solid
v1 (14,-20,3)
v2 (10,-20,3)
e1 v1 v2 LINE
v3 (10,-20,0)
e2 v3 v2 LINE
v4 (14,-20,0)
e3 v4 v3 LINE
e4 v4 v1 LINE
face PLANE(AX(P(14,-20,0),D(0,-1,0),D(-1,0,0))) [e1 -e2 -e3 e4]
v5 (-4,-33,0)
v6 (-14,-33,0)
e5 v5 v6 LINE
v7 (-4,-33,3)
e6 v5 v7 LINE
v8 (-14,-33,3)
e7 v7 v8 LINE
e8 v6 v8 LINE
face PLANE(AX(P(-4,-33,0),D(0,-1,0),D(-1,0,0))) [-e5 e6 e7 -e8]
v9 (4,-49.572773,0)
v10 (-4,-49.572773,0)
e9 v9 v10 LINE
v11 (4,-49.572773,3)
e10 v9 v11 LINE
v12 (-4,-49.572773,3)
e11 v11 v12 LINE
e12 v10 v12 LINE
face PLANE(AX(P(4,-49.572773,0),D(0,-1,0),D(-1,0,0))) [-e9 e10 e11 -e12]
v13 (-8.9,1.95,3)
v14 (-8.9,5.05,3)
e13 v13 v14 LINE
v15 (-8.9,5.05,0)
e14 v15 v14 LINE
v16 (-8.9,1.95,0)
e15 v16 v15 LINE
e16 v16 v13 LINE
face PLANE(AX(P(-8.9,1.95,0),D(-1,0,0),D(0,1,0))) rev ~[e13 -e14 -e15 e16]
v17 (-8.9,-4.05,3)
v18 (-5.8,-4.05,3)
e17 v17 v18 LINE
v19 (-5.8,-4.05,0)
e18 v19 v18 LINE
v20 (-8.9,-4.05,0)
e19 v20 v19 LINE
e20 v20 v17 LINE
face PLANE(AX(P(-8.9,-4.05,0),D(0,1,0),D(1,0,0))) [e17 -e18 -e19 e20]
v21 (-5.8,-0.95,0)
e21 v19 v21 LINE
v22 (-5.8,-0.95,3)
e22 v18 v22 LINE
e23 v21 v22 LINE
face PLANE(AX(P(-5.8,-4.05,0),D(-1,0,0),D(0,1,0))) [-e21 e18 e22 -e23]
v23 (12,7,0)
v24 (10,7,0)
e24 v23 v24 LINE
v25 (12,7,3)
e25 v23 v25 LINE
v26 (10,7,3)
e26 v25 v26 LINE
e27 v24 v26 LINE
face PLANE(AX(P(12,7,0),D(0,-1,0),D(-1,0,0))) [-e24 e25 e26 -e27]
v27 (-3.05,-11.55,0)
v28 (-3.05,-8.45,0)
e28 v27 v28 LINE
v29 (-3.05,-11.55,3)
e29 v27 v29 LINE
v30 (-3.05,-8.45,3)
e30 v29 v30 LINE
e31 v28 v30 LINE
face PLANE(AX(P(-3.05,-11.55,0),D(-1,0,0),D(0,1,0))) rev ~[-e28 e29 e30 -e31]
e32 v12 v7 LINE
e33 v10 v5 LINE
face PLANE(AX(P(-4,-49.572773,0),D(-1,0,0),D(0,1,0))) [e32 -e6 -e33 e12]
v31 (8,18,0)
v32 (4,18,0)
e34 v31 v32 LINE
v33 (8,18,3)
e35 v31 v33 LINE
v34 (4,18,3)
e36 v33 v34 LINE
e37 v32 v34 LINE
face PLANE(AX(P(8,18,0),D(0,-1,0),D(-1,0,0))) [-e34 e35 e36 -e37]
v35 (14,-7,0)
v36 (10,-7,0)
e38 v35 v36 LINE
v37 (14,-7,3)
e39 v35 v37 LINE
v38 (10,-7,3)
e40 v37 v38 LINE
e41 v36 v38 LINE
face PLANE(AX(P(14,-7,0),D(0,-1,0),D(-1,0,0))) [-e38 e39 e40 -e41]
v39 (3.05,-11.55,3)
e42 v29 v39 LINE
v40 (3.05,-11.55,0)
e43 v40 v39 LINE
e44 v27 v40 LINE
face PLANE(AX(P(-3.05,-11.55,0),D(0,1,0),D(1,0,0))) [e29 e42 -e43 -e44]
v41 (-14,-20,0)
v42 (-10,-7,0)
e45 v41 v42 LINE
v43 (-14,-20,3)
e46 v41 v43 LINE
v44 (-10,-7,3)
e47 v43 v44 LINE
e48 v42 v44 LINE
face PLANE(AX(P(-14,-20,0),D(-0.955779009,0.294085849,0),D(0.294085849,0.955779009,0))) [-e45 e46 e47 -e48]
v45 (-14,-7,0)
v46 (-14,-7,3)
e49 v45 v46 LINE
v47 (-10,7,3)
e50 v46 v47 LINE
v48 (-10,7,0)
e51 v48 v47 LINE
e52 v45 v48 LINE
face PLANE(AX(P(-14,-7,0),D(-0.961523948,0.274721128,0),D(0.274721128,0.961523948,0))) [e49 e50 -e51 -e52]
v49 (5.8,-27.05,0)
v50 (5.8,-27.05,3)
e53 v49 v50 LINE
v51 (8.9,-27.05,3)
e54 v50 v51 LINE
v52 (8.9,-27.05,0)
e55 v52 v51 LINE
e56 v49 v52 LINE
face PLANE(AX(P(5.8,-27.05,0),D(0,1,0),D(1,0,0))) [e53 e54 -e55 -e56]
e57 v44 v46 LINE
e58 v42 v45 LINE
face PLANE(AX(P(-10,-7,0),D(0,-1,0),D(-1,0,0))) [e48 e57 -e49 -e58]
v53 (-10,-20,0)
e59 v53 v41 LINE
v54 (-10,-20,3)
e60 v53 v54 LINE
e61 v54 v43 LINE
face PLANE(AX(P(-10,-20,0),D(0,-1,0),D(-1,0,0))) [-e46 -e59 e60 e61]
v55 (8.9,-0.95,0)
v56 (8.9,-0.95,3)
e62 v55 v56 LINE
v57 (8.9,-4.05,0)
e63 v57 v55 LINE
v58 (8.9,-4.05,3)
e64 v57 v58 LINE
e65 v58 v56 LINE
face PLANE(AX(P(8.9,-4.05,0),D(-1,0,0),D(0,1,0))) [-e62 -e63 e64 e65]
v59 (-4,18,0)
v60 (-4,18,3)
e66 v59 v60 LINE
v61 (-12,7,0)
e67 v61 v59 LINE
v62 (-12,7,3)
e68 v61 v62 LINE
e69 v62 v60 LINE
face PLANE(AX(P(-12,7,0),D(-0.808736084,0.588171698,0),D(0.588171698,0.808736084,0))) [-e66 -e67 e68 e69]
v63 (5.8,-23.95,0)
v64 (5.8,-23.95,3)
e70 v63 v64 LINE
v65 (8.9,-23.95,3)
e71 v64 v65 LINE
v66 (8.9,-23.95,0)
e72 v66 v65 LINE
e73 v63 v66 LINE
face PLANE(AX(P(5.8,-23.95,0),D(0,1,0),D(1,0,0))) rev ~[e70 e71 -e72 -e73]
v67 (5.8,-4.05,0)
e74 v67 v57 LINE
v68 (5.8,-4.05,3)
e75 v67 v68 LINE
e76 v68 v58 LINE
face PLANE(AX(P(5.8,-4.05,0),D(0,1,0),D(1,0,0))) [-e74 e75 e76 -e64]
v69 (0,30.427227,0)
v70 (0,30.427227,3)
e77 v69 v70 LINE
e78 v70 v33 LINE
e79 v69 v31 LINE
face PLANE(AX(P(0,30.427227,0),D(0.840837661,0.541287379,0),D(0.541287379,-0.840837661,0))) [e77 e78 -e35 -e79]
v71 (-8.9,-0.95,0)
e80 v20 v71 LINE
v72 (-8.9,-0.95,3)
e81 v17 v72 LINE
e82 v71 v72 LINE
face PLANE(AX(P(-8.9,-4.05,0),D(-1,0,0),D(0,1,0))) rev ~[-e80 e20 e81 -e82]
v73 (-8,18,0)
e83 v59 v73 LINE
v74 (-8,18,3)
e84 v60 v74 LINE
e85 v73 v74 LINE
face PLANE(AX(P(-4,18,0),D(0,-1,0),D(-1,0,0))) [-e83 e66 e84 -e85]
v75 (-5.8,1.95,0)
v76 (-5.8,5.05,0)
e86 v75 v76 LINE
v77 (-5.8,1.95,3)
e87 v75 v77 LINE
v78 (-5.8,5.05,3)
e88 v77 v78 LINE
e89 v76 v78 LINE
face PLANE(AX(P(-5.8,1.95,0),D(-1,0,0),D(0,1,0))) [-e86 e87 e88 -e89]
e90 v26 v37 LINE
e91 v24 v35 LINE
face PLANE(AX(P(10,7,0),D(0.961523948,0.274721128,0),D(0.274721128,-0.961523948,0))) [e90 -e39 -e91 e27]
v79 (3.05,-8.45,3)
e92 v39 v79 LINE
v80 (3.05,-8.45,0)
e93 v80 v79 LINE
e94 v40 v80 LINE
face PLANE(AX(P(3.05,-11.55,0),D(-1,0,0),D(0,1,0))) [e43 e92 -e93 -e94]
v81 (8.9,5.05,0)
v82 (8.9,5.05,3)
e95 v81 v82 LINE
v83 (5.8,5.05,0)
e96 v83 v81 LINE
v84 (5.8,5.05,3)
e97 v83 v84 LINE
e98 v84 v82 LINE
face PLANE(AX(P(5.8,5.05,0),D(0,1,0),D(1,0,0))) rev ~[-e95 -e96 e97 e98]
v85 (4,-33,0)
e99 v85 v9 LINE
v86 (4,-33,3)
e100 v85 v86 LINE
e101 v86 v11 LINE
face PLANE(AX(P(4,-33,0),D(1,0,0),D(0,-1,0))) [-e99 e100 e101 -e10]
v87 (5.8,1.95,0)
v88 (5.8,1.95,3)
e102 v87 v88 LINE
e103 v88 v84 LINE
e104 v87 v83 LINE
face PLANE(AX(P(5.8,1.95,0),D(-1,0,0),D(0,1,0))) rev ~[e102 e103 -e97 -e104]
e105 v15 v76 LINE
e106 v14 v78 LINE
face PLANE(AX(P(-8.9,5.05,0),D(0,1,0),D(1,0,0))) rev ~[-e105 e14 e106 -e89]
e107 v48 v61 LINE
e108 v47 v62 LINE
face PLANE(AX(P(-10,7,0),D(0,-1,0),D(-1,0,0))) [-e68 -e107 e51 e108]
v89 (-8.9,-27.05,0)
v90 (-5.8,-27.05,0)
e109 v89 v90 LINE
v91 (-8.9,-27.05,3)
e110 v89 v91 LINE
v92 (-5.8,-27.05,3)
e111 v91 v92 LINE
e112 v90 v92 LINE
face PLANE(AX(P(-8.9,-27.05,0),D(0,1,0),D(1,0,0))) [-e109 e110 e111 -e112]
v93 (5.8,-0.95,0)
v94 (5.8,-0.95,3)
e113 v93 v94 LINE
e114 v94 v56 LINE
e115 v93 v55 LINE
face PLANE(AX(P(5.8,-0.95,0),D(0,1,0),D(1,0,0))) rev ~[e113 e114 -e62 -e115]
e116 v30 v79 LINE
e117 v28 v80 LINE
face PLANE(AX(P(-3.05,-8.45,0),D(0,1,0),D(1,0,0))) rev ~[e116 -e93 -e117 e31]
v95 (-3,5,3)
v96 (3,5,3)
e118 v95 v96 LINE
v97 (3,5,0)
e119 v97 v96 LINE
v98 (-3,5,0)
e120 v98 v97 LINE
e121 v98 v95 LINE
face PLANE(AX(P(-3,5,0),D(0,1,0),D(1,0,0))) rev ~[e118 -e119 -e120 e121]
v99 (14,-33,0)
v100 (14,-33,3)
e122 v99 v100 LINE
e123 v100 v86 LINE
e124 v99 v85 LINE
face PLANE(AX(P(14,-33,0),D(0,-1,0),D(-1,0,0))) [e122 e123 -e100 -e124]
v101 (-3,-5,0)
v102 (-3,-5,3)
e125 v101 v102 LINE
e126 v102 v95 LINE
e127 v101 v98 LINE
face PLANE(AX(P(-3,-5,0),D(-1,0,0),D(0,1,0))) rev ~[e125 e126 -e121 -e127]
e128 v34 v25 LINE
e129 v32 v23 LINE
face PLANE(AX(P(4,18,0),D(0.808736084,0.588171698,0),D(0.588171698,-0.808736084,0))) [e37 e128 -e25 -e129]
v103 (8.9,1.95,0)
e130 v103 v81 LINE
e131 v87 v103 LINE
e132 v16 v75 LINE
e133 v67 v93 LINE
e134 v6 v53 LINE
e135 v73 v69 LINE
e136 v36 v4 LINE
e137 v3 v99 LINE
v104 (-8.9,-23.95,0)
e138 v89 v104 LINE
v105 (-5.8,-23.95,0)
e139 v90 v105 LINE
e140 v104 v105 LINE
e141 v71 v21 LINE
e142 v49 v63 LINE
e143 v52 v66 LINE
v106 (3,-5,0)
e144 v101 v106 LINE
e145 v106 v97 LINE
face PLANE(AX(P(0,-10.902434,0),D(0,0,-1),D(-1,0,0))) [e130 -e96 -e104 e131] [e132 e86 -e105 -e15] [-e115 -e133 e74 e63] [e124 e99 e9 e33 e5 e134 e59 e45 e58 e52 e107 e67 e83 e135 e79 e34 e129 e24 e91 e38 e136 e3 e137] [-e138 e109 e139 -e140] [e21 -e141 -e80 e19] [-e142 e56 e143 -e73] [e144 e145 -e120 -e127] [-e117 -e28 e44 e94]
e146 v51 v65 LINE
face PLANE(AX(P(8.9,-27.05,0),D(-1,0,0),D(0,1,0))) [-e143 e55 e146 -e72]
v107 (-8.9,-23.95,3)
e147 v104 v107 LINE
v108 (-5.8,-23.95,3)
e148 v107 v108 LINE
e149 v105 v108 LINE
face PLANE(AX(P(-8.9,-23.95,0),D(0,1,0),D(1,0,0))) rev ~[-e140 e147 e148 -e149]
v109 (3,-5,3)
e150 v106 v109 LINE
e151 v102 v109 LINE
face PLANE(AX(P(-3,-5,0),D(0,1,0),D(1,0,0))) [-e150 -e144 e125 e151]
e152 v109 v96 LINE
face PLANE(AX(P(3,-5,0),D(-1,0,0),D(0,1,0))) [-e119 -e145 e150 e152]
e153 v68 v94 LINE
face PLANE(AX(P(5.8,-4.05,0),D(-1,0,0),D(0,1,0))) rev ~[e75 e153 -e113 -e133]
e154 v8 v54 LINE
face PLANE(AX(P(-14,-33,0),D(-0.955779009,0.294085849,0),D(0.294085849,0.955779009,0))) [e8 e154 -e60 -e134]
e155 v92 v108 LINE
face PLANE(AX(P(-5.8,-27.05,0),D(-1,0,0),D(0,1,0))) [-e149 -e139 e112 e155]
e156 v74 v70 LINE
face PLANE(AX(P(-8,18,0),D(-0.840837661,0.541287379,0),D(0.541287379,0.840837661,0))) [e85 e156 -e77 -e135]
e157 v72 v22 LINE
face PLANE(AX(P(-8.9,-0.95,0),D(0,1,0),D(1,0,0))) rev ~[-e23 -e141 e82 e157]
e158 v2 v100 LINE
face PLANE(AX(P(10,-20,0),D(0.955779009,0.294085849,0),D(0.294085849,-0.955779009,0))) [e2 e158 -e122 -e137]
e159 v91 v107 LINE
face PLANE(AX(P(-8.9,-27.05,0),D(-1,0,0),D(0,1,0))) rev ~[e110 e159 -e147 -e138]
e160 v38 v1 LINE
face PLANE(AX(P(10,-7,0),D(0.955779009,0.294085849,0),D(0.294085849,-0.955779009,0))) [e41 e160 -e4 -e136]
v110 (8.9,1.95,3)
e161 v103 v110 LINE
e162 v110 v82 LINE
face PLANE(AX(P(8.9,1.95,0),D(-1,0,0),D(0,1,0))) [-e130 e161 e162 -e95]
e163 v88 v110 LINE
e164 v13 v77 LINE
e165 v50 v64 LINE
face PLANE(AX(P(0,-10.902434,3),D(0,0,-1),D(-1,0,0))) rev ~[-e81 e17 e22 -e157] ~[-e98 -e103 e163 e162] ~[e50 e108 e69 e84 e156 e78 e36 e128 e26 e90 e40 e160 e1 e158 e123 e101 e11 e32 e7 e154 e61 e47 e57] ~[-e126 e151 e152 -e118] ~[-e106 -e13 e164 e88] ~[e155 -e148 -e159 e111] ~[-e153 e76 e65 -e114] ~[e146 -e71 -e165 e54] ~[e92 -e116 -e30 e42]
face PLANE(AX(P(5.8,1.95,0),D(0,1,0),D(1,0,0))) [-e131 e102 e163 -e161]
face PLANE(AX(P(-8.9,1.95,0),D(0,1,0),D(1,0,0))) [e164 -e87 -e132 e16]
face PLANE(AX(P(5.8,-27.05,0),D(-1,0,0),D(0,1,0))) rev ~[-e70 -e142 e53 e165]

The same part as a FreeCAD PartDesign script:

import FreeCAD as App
import Part
import Sketcher

V = App.Vector
Q = App.Units.Quantity


def add_polygon(sketch, points):
    """Adds a closed chain of lines whose ends are joined by coincident constraints."""
    first, n = sketch.GeometryCount, len(points)
    for a, b in zip(points, points[1:] + points[:1]):
        sketch.addGeometry(Part.LineSegment(App.Vector(*a, 0), App.Vector(*b, 0)), False)
    for i in range(n):
        sketch.addConstraint(Sketcher.Constraint("Coincident", first + i, 2, first + (i + 1) % n, 1))

doc = App.newDocument("Part")
params = doc.addObject("Spreadsheet::Sheet", "Params")
for row, (alias, value) in enumerate([
    ("sketch1_width", "4 mm"),
    ("sketch1_width2", "2 mm"),
    ("sketch1_width3", "10 mm"),
    ("sketch1_width4", "8 mm"),
    ("sketch1_width5", "6 mm"),
    ("pad1_length", "3 mm"),
], start=1):
    params.set(f"A{row}", alias)
    params.set(f"B{row}", "=" + value)
    params.setAlias(f"B{row}", alias)

body = doc.addObject("PartDesign::Body", "Body")

sketch1 = doc.addObject("Sketcher::SketchObject", "Sketch")
body.addObject(sketch1)
sketch1.AttachmentSupport = (doc.XY_Plane, [""])
sketch1.MapMode = "FlatFace"
add_polygon(sketch1, [(8, 18), (0, 30.4), (-8, 18), (-4, 18), (-12, 7), (-10, 7), (-14, -7), (-10, -7), (-14, -20), (-10, -20), (-14, -33), (-4, -33), (-4, -49.6), (4, -49.6), (4, -33), (14, -33), (10, -20), (14, -20), (10, -7), (14, -7), (10, 7), (12, 7), (4, 18)])
add_polygon(sketch1, [(5.8, -27.1), (5.8, -23.9), (8.9, -23.9), (8.9, -27.1)])
add_polygon(sketch1, [(-8.9, -27.1), (-8.9, -23.9), (-5.8, -23.9), (-5.8, -27.1)])
add_polygon(sketch1, [(5.8, -4), (5.8, -0.9), (8.9, -0.9), (8.9, -4)])
add_polygon(sketch1, [(5.8, 1.9), (5.8, 5), (8.9, 5), (8.9, 1.9)])
add_polygon(sketch1, [(-3, -11.6), (-3, -8.4), (3, -8.4), (3, -11.6)])
add_polygon(sketch1, [(-3, -5), (-3, 5), (3, 5), (3, -5)])
add_polygon(sketch1, [(-8.9, -4), (-8.9, -0.9), (-5.8, -0.9), (-5.8, -4)])
add_polygon(sketch1, [(-8.9, 1.9), (-8.9, 5), (-5.8, 5), (-5.8, 1.9)])
sketch1.addConstraint(Sketcher.Constraint("Horizontal", 2))
sketch1.addConstraint(Sketcher.Constraint("Horizontal", 4))
sketch1.addConstraint(Sketcher.Constraint("Horizontal", 6))
sketch1.addConstraint(Sketcher.Constraint("Horizontal", 8))
sketch1.addConstraint(Sketcher.Constraint("Horizontal", 10))
sketch1.addConstraint(Sketcher.Constraint("Vertical", 11))
sketch1.addConstraint(Sketcher.Constraint("Horizontal", 12))
sketch1.addConstraint(Sketcher.Constraint("Vertical", 13))
sketch1.addConstraint(Sketcher.Constraint("Horizontal", 14))
sketch1.addConstraint(Sketcher.Constraint("Horizontal", 16))
sketch1.addConstraint(Sketcher.Constraint("Horizontal", 18))
sketch1.addConstraint(Sketcher.Constraint("Horizontal", 20))
sketch1.addConstraint(Sketcher.Constraint("Horizontal", 22))
sketch1.addConstraint(Sketcher.Constraint("Vertical", 23))
sketch1.addConstraint(Sketcher.Constraint("Horizontal", 24))
sketch1.addConstraint(Sketcher.Constraint("Vertical", 25))
sketch1.addConstraint(Sketcher.Constraint("Horizontal", 26))
sketch1.addConstraint(Sketcher.Constraint("Vertical", 27))
sketch1.addConstraint(Sketcher.Constraint("Horizontal", 28))
sketch1.addConstraint(Sketcher.Constraint("Vertical", 29))
sketch1.addConstraint(Sketcher.Constraint("Horizontal", 30))
sketch1.addConstraint(Sketcher.Constraint("Vertical", 31))
sketch1.addConstraint(Sketcher.Constraint("Horizontal", 32))
sketch1.addConstraint(Sketcher.Constraint("Vertical", 33))
sketch1.addConstraint(Sketcher.Constraint("Horizontal", 34))
sketch1.addConstraint(Sketcher.Constraint("Vertical", 35))
sketch1.addConstraint(Sketcher.Constraint("Horizontal", 36))
sketch1.addConstraint(Sketcher.Constraint("Vertical", 37))
sketch1.addConstraint(Sketcher.Constraint("Horizontal", 38))
sketch1.addConstraint(Sketcher.Constraint("Vertical", 39))
sketch1.addConstraint(Sketcher.Constraint("Horizontal", 40))
sketch1.addConstraint(Sketcher.Constraint("Vertical", 41))
sketch1.addConstraint(Sketcher.Constraint("Horizontal", 42))
sketch1.addConstraint(Sketcher.Constraint("Vertical", 43))
sketch1.addConstraint(Sketcher.Constraint("Horizontal", 44))
sketch1.addConstraint(Sketcher.Constraint("Vertical", 45))
sketch1.addConstraint(Sketcher.Constraint("Horizontal", 46))
sketch1.addConstraint(Sketcher.Constraint("Vertical", 47))
sketch1.addConstraint(Sketcher.Constraint("Horizontal", 48))
sketch1.addConstraint(Sketcher.Constraint("Vertical", 49))
sketch1.addConstraint(Sketcher.Constraint("Horizontal", 50))
sketch1.addConstraint(Sketcher.Constraint("Vertical", 51))
sketch1.addConstraint(Sketcher.Constraint("Horizontal", 52))
sketch1.addConstraint(Sketcher.Constraint("Vertical", 53))
sketch1.addConstraint(Sketcher.Constraint("Horizontal", 54))
sketch1.addConstraint(Sketcher.Constraint("Symmetric", 4, 2, 17, 2, -1, 1))
sketch1.addConstraint(Sketcher.Constraint("Symmetric", 6, 2, 19, 2, -1, 1))
sketch1.addConstraint(Sketcher.Constraint("Symmetric", 43, 2, 45, 2, -1, 1))
sketch1.addConstraint(Sketcher.Constraint("Symmetric", 10, 2, 13, 2, -2))
sketch1.addConstraint(Sketcher.Constraint("Symmetric", 8, 2, 15, 2, -2))
sketch1.addConstraint(Sketcher.Constraint("Symmetric", 6, 2, 17, 2, -2))
sketch1.addConstraint(Sketcher.Constraint("Symmetric", 2, 2, 21, 2, -2))
sketch1.addConstraint(Sketcher.Constraint("Symmetric", 24, 2, 27, 2, -2))
sketch1.addConstraint(Sketcher.Constraint("Symmetric", 26, 2, 29, 2, -2))
sketch1.addConstraint(Sketcher.Constraint("Symmetric", 32, 2, 47, 2, -2))
sketch1.addConstraint(Sketcher.Constraint("Symmetric", 34, 2, 49, 2, -2))
sketch1.addConstraint(Sketcher.Constraint("Symmetric", 36, 2, 51, 2, -2))
sketch1.addConstraint(Sketcher.Constraint("Symmetric", 38, 2, 53, 2, -2))
sketch1.addConstraint(Sketcher.Constraint("PointOnObject", 0, 2, -2))
sketch1.addConstraint(Sketcher.Constraint("Parallel", 7, 9))
sketch1.addConstraint(Sketcher.Constraint("Parallel", 15, 17))
sketch1.addConstraint(Sketcher.Constraint("Vertical", 5, 2, 7, 2))
sketch1.addConstraint(Sketcher.Constraint("Vertical", 6, 2, 8, 2))
sketch1.addConstraint(Sketcher.Constraint("Vertical", 7, 2, 9, 2))
sketch1.addConstraint(Sketcher.Constraint("Vertical", 2, 2, 10, 2))
sketch1.addConstraint(Sketcher.Constraint("Vertical", 16, 2, 18, 2))
sketch1.addConstraint(Sketcher.Constraint("Vertical", 26, 2, 31, 2))
sketch1.addConstraint(Sketcher.Constraint("Vertical", 25, 2, 32, 2))
sketch1.addConstraint(Sketcher.Constraint("Vertical", 34, 2, 35, 2))
sketch1.addConstraint(Sketcher.Constraint("Vertical", 33, 2, 36, 2))
sketch1.addConstraint(Sketcher.Constraint("Equal", 2, 6))
sketch1.addConstraint(Sketcher.Constraint("Equal", 10, 14))
sketch1.addConstraint(Sketcher.Constraint("Equal", 4, 20))
sketch1.addConstraint(Sketcher.Constraint("Equal", 18, 22))
sketch1.addConstraint(Sketcher.Constraint("Equal", 54, 23))
sketch1.addConstraint(Sketcher.Constraint("Equal", 29, 31))
sketch1.addConstraint(Sketcher.Constraint("Equal", 33, 35))
sketch1.addConstraint(Sketcher.Constraint("Equal", 37, 39))
sketch1.addConstraint(Sketcher.Constraint("Equal", 14, 43))
sketch1.addConstraint(Sketcher.Constraint("Equal", 3, 7))
sketch1.addConstraint(Sketcher.Constraint("DistanceX", 2, 1, 2, 2, Q("4 mm")))
sketch1.addConstraint(Sketcher.Constraint("DistanceX", 4, 1, 4, 2, Q("2 mm")))
sketch1.addConstraint(Sketcher.Constraint("DistanceX", 10, 1, 10, 2, Q("10 mm")))
sketch1.addConstraint(Sketcher.Constraint("DistanceX", 12, 1, 12, 2, Q("8 mm")))
sketch1.addConstraint(Sketcher.Constraint("DistanceX", 44, 1, 44, 2, Q("6 mm")))
sketch1.addConstraint(Sketcher.Constraint("DistanceX", 24, 1, 24, 2, Q("3.1 mm")))
sketch1.addConstraint(Sketcher.Constraint("DistanceX", 40, 1, 40, 2, Q("6.1 mm")))
sketch1.addConstraint(Sketcher.Constraint("DistanceY", -1, 1, 1, 2, Q("18 mm")))
sketch1.addConstraint(Sketcher.Constraint("DistanceY", -1, 1, 3, 2, Q("7 mm")))
sketch1.addConstraint(Sketcher.Constraint("DistanceY", 31, 2, 35, 2, Q("6 mm")))
sketch1.addConstraint(Sketcher.Constraint("DistanceX", -1, 1, 23, 2, Q("5.8 mm")))
sketch1.addConstraint(Sketcher.Constraint("DistanceY", 39, 2, 34, 2, Q("4.4 mm")))
sketch1.addConstraint(Sketcher.Constraint("DistanceY", 23, 2, -1, 1, Q("23.95 mm")))
sketch1.addConstraint(Sketcher.Constraint("DistanceY", 31, 2, -1, 1, Q("0.95 mm")))
sketch1.addConstraint(Sketcher.Constraint("DistanceX", 39, 2, -1, 1, Q("3.05 mm")))
sketch1.addConstraint(Sketcher.Constraint("Distance", 0, Q("14.77958 mm")))
sketch1.addConstraint(Sketcher.Constraint("DistanceY", 11, 2, 11, 1, Q("16.572773 mm")))
sketch1.setExpression("Constraints[135]", "Params.sketch1_width")
sketch1.setExpression("Constraints[136]", "Params.sketch1_width2")
sketch1.setExpression("Constraints[137]", "Params.sketch1_width3")
sketch1.setExpression("Constraints[138]", "Params.sketch1_width4")
sketch1.setExpression("Constraints[139]", "Params.sketch1_width5")
pad1 = doc.addObject("PartDesign::Pad", "Pad")
body.addObject(pad1)
pad1.Profile = sketch1
pad1.setExpression("Length", "Params.pad1_length")

doc.recompute()
